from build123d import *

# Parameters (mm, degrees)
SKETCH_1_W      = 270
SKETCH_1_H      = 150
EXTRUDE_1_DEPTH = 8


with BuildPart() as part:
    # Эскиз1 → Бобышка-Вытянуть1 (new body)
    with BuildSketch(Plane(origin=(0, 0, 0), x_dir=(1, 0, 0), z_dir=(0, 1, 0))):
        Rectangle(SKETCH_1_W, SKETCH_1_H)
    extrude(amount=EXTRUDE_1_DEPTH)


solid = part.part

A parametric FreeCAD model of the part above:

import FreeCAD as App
import Part
import Sketcher
from FreeCAD import Vector
Q = App.Units.Quantity

doc = App.newDocument("Part")
params = doc.addObject("Spreadsheet::Sheet", "Params")
for row, (alias, value) in enumerate([
    ("sketch1_width", "270 mm"),
    ("sketch1_height", "150 mm"),
    ("pad1_length", "8 mm"),
], start=1):
    params.set(f"A{row}", alias)
    params.set(f"B{row}", "=" + value)
    params.setAlias(f"B{row}", alias)

body = doc.addObject("PartDesign::Body", "Body")

sketch1 = body.newObject("Sketcher::SketchObject", "Sketch")
sketch1.AttachmentSupport = (doc.getObject("XZ_Plane"), [""])
sketch1.MapMode = "FlatFace"
sketch1.addGeometry([
    Part.LineSegment(Vector(-135, -75, 0), Vector(-135, 75, 0)),
    Part.LineSegment(Vector(-135, 75, 0), Vector(135, 75, 0)),
    Part.LineSegment(Vector(135, 75, 0), Vector(135, -75, 0)),
    Part.LineSegment(Vector(135, -75, 0), Vector(-135, -75, 0)),
], False)
sketch1.addConstraint([
    Sketcher.Constraint("Coincident", 0, 2, 1, 1),
    Sketcher.Constraint("Coincident", 1, 2, 2, 1),
    Sketcher.Constraint("Coincident", 2, 2, 3, 1),
    Sketcher.Constraint("Coincident", 3, 2, 0, 1),
    Sketcher.Constraint("Vertical", 0),
    Sketcher.Constraint("Horizontal", 1),
    Sketcher.Constraint("Vertical", 2),
    Sketcher.Constraint("Horizontal", 3),
    Sketcher.Constraint("Symmetric", 0, 2, 2, 2, -1, 1),
    Sketcher.Constraint("DistanceX", 1, 1, 1, 2, Q("270 mm")),
    Sketcher.Constraint("DistanceY", 0, 1, 0, 2, Q("150 mm")),
])
sketch1.setExpression("Constraints[9]", "Params.sketch1_width")
sketch1.setExpression("Constraints[10]", "Params.sketch1_height")
pad1 = body.newObject("PartDesign::Pad", "Pad")
pad1.Profile = sketch1
pad1.setExpression("Length", "Params.pad1_length")
pad1.Reversed = True

doc.recompute()
